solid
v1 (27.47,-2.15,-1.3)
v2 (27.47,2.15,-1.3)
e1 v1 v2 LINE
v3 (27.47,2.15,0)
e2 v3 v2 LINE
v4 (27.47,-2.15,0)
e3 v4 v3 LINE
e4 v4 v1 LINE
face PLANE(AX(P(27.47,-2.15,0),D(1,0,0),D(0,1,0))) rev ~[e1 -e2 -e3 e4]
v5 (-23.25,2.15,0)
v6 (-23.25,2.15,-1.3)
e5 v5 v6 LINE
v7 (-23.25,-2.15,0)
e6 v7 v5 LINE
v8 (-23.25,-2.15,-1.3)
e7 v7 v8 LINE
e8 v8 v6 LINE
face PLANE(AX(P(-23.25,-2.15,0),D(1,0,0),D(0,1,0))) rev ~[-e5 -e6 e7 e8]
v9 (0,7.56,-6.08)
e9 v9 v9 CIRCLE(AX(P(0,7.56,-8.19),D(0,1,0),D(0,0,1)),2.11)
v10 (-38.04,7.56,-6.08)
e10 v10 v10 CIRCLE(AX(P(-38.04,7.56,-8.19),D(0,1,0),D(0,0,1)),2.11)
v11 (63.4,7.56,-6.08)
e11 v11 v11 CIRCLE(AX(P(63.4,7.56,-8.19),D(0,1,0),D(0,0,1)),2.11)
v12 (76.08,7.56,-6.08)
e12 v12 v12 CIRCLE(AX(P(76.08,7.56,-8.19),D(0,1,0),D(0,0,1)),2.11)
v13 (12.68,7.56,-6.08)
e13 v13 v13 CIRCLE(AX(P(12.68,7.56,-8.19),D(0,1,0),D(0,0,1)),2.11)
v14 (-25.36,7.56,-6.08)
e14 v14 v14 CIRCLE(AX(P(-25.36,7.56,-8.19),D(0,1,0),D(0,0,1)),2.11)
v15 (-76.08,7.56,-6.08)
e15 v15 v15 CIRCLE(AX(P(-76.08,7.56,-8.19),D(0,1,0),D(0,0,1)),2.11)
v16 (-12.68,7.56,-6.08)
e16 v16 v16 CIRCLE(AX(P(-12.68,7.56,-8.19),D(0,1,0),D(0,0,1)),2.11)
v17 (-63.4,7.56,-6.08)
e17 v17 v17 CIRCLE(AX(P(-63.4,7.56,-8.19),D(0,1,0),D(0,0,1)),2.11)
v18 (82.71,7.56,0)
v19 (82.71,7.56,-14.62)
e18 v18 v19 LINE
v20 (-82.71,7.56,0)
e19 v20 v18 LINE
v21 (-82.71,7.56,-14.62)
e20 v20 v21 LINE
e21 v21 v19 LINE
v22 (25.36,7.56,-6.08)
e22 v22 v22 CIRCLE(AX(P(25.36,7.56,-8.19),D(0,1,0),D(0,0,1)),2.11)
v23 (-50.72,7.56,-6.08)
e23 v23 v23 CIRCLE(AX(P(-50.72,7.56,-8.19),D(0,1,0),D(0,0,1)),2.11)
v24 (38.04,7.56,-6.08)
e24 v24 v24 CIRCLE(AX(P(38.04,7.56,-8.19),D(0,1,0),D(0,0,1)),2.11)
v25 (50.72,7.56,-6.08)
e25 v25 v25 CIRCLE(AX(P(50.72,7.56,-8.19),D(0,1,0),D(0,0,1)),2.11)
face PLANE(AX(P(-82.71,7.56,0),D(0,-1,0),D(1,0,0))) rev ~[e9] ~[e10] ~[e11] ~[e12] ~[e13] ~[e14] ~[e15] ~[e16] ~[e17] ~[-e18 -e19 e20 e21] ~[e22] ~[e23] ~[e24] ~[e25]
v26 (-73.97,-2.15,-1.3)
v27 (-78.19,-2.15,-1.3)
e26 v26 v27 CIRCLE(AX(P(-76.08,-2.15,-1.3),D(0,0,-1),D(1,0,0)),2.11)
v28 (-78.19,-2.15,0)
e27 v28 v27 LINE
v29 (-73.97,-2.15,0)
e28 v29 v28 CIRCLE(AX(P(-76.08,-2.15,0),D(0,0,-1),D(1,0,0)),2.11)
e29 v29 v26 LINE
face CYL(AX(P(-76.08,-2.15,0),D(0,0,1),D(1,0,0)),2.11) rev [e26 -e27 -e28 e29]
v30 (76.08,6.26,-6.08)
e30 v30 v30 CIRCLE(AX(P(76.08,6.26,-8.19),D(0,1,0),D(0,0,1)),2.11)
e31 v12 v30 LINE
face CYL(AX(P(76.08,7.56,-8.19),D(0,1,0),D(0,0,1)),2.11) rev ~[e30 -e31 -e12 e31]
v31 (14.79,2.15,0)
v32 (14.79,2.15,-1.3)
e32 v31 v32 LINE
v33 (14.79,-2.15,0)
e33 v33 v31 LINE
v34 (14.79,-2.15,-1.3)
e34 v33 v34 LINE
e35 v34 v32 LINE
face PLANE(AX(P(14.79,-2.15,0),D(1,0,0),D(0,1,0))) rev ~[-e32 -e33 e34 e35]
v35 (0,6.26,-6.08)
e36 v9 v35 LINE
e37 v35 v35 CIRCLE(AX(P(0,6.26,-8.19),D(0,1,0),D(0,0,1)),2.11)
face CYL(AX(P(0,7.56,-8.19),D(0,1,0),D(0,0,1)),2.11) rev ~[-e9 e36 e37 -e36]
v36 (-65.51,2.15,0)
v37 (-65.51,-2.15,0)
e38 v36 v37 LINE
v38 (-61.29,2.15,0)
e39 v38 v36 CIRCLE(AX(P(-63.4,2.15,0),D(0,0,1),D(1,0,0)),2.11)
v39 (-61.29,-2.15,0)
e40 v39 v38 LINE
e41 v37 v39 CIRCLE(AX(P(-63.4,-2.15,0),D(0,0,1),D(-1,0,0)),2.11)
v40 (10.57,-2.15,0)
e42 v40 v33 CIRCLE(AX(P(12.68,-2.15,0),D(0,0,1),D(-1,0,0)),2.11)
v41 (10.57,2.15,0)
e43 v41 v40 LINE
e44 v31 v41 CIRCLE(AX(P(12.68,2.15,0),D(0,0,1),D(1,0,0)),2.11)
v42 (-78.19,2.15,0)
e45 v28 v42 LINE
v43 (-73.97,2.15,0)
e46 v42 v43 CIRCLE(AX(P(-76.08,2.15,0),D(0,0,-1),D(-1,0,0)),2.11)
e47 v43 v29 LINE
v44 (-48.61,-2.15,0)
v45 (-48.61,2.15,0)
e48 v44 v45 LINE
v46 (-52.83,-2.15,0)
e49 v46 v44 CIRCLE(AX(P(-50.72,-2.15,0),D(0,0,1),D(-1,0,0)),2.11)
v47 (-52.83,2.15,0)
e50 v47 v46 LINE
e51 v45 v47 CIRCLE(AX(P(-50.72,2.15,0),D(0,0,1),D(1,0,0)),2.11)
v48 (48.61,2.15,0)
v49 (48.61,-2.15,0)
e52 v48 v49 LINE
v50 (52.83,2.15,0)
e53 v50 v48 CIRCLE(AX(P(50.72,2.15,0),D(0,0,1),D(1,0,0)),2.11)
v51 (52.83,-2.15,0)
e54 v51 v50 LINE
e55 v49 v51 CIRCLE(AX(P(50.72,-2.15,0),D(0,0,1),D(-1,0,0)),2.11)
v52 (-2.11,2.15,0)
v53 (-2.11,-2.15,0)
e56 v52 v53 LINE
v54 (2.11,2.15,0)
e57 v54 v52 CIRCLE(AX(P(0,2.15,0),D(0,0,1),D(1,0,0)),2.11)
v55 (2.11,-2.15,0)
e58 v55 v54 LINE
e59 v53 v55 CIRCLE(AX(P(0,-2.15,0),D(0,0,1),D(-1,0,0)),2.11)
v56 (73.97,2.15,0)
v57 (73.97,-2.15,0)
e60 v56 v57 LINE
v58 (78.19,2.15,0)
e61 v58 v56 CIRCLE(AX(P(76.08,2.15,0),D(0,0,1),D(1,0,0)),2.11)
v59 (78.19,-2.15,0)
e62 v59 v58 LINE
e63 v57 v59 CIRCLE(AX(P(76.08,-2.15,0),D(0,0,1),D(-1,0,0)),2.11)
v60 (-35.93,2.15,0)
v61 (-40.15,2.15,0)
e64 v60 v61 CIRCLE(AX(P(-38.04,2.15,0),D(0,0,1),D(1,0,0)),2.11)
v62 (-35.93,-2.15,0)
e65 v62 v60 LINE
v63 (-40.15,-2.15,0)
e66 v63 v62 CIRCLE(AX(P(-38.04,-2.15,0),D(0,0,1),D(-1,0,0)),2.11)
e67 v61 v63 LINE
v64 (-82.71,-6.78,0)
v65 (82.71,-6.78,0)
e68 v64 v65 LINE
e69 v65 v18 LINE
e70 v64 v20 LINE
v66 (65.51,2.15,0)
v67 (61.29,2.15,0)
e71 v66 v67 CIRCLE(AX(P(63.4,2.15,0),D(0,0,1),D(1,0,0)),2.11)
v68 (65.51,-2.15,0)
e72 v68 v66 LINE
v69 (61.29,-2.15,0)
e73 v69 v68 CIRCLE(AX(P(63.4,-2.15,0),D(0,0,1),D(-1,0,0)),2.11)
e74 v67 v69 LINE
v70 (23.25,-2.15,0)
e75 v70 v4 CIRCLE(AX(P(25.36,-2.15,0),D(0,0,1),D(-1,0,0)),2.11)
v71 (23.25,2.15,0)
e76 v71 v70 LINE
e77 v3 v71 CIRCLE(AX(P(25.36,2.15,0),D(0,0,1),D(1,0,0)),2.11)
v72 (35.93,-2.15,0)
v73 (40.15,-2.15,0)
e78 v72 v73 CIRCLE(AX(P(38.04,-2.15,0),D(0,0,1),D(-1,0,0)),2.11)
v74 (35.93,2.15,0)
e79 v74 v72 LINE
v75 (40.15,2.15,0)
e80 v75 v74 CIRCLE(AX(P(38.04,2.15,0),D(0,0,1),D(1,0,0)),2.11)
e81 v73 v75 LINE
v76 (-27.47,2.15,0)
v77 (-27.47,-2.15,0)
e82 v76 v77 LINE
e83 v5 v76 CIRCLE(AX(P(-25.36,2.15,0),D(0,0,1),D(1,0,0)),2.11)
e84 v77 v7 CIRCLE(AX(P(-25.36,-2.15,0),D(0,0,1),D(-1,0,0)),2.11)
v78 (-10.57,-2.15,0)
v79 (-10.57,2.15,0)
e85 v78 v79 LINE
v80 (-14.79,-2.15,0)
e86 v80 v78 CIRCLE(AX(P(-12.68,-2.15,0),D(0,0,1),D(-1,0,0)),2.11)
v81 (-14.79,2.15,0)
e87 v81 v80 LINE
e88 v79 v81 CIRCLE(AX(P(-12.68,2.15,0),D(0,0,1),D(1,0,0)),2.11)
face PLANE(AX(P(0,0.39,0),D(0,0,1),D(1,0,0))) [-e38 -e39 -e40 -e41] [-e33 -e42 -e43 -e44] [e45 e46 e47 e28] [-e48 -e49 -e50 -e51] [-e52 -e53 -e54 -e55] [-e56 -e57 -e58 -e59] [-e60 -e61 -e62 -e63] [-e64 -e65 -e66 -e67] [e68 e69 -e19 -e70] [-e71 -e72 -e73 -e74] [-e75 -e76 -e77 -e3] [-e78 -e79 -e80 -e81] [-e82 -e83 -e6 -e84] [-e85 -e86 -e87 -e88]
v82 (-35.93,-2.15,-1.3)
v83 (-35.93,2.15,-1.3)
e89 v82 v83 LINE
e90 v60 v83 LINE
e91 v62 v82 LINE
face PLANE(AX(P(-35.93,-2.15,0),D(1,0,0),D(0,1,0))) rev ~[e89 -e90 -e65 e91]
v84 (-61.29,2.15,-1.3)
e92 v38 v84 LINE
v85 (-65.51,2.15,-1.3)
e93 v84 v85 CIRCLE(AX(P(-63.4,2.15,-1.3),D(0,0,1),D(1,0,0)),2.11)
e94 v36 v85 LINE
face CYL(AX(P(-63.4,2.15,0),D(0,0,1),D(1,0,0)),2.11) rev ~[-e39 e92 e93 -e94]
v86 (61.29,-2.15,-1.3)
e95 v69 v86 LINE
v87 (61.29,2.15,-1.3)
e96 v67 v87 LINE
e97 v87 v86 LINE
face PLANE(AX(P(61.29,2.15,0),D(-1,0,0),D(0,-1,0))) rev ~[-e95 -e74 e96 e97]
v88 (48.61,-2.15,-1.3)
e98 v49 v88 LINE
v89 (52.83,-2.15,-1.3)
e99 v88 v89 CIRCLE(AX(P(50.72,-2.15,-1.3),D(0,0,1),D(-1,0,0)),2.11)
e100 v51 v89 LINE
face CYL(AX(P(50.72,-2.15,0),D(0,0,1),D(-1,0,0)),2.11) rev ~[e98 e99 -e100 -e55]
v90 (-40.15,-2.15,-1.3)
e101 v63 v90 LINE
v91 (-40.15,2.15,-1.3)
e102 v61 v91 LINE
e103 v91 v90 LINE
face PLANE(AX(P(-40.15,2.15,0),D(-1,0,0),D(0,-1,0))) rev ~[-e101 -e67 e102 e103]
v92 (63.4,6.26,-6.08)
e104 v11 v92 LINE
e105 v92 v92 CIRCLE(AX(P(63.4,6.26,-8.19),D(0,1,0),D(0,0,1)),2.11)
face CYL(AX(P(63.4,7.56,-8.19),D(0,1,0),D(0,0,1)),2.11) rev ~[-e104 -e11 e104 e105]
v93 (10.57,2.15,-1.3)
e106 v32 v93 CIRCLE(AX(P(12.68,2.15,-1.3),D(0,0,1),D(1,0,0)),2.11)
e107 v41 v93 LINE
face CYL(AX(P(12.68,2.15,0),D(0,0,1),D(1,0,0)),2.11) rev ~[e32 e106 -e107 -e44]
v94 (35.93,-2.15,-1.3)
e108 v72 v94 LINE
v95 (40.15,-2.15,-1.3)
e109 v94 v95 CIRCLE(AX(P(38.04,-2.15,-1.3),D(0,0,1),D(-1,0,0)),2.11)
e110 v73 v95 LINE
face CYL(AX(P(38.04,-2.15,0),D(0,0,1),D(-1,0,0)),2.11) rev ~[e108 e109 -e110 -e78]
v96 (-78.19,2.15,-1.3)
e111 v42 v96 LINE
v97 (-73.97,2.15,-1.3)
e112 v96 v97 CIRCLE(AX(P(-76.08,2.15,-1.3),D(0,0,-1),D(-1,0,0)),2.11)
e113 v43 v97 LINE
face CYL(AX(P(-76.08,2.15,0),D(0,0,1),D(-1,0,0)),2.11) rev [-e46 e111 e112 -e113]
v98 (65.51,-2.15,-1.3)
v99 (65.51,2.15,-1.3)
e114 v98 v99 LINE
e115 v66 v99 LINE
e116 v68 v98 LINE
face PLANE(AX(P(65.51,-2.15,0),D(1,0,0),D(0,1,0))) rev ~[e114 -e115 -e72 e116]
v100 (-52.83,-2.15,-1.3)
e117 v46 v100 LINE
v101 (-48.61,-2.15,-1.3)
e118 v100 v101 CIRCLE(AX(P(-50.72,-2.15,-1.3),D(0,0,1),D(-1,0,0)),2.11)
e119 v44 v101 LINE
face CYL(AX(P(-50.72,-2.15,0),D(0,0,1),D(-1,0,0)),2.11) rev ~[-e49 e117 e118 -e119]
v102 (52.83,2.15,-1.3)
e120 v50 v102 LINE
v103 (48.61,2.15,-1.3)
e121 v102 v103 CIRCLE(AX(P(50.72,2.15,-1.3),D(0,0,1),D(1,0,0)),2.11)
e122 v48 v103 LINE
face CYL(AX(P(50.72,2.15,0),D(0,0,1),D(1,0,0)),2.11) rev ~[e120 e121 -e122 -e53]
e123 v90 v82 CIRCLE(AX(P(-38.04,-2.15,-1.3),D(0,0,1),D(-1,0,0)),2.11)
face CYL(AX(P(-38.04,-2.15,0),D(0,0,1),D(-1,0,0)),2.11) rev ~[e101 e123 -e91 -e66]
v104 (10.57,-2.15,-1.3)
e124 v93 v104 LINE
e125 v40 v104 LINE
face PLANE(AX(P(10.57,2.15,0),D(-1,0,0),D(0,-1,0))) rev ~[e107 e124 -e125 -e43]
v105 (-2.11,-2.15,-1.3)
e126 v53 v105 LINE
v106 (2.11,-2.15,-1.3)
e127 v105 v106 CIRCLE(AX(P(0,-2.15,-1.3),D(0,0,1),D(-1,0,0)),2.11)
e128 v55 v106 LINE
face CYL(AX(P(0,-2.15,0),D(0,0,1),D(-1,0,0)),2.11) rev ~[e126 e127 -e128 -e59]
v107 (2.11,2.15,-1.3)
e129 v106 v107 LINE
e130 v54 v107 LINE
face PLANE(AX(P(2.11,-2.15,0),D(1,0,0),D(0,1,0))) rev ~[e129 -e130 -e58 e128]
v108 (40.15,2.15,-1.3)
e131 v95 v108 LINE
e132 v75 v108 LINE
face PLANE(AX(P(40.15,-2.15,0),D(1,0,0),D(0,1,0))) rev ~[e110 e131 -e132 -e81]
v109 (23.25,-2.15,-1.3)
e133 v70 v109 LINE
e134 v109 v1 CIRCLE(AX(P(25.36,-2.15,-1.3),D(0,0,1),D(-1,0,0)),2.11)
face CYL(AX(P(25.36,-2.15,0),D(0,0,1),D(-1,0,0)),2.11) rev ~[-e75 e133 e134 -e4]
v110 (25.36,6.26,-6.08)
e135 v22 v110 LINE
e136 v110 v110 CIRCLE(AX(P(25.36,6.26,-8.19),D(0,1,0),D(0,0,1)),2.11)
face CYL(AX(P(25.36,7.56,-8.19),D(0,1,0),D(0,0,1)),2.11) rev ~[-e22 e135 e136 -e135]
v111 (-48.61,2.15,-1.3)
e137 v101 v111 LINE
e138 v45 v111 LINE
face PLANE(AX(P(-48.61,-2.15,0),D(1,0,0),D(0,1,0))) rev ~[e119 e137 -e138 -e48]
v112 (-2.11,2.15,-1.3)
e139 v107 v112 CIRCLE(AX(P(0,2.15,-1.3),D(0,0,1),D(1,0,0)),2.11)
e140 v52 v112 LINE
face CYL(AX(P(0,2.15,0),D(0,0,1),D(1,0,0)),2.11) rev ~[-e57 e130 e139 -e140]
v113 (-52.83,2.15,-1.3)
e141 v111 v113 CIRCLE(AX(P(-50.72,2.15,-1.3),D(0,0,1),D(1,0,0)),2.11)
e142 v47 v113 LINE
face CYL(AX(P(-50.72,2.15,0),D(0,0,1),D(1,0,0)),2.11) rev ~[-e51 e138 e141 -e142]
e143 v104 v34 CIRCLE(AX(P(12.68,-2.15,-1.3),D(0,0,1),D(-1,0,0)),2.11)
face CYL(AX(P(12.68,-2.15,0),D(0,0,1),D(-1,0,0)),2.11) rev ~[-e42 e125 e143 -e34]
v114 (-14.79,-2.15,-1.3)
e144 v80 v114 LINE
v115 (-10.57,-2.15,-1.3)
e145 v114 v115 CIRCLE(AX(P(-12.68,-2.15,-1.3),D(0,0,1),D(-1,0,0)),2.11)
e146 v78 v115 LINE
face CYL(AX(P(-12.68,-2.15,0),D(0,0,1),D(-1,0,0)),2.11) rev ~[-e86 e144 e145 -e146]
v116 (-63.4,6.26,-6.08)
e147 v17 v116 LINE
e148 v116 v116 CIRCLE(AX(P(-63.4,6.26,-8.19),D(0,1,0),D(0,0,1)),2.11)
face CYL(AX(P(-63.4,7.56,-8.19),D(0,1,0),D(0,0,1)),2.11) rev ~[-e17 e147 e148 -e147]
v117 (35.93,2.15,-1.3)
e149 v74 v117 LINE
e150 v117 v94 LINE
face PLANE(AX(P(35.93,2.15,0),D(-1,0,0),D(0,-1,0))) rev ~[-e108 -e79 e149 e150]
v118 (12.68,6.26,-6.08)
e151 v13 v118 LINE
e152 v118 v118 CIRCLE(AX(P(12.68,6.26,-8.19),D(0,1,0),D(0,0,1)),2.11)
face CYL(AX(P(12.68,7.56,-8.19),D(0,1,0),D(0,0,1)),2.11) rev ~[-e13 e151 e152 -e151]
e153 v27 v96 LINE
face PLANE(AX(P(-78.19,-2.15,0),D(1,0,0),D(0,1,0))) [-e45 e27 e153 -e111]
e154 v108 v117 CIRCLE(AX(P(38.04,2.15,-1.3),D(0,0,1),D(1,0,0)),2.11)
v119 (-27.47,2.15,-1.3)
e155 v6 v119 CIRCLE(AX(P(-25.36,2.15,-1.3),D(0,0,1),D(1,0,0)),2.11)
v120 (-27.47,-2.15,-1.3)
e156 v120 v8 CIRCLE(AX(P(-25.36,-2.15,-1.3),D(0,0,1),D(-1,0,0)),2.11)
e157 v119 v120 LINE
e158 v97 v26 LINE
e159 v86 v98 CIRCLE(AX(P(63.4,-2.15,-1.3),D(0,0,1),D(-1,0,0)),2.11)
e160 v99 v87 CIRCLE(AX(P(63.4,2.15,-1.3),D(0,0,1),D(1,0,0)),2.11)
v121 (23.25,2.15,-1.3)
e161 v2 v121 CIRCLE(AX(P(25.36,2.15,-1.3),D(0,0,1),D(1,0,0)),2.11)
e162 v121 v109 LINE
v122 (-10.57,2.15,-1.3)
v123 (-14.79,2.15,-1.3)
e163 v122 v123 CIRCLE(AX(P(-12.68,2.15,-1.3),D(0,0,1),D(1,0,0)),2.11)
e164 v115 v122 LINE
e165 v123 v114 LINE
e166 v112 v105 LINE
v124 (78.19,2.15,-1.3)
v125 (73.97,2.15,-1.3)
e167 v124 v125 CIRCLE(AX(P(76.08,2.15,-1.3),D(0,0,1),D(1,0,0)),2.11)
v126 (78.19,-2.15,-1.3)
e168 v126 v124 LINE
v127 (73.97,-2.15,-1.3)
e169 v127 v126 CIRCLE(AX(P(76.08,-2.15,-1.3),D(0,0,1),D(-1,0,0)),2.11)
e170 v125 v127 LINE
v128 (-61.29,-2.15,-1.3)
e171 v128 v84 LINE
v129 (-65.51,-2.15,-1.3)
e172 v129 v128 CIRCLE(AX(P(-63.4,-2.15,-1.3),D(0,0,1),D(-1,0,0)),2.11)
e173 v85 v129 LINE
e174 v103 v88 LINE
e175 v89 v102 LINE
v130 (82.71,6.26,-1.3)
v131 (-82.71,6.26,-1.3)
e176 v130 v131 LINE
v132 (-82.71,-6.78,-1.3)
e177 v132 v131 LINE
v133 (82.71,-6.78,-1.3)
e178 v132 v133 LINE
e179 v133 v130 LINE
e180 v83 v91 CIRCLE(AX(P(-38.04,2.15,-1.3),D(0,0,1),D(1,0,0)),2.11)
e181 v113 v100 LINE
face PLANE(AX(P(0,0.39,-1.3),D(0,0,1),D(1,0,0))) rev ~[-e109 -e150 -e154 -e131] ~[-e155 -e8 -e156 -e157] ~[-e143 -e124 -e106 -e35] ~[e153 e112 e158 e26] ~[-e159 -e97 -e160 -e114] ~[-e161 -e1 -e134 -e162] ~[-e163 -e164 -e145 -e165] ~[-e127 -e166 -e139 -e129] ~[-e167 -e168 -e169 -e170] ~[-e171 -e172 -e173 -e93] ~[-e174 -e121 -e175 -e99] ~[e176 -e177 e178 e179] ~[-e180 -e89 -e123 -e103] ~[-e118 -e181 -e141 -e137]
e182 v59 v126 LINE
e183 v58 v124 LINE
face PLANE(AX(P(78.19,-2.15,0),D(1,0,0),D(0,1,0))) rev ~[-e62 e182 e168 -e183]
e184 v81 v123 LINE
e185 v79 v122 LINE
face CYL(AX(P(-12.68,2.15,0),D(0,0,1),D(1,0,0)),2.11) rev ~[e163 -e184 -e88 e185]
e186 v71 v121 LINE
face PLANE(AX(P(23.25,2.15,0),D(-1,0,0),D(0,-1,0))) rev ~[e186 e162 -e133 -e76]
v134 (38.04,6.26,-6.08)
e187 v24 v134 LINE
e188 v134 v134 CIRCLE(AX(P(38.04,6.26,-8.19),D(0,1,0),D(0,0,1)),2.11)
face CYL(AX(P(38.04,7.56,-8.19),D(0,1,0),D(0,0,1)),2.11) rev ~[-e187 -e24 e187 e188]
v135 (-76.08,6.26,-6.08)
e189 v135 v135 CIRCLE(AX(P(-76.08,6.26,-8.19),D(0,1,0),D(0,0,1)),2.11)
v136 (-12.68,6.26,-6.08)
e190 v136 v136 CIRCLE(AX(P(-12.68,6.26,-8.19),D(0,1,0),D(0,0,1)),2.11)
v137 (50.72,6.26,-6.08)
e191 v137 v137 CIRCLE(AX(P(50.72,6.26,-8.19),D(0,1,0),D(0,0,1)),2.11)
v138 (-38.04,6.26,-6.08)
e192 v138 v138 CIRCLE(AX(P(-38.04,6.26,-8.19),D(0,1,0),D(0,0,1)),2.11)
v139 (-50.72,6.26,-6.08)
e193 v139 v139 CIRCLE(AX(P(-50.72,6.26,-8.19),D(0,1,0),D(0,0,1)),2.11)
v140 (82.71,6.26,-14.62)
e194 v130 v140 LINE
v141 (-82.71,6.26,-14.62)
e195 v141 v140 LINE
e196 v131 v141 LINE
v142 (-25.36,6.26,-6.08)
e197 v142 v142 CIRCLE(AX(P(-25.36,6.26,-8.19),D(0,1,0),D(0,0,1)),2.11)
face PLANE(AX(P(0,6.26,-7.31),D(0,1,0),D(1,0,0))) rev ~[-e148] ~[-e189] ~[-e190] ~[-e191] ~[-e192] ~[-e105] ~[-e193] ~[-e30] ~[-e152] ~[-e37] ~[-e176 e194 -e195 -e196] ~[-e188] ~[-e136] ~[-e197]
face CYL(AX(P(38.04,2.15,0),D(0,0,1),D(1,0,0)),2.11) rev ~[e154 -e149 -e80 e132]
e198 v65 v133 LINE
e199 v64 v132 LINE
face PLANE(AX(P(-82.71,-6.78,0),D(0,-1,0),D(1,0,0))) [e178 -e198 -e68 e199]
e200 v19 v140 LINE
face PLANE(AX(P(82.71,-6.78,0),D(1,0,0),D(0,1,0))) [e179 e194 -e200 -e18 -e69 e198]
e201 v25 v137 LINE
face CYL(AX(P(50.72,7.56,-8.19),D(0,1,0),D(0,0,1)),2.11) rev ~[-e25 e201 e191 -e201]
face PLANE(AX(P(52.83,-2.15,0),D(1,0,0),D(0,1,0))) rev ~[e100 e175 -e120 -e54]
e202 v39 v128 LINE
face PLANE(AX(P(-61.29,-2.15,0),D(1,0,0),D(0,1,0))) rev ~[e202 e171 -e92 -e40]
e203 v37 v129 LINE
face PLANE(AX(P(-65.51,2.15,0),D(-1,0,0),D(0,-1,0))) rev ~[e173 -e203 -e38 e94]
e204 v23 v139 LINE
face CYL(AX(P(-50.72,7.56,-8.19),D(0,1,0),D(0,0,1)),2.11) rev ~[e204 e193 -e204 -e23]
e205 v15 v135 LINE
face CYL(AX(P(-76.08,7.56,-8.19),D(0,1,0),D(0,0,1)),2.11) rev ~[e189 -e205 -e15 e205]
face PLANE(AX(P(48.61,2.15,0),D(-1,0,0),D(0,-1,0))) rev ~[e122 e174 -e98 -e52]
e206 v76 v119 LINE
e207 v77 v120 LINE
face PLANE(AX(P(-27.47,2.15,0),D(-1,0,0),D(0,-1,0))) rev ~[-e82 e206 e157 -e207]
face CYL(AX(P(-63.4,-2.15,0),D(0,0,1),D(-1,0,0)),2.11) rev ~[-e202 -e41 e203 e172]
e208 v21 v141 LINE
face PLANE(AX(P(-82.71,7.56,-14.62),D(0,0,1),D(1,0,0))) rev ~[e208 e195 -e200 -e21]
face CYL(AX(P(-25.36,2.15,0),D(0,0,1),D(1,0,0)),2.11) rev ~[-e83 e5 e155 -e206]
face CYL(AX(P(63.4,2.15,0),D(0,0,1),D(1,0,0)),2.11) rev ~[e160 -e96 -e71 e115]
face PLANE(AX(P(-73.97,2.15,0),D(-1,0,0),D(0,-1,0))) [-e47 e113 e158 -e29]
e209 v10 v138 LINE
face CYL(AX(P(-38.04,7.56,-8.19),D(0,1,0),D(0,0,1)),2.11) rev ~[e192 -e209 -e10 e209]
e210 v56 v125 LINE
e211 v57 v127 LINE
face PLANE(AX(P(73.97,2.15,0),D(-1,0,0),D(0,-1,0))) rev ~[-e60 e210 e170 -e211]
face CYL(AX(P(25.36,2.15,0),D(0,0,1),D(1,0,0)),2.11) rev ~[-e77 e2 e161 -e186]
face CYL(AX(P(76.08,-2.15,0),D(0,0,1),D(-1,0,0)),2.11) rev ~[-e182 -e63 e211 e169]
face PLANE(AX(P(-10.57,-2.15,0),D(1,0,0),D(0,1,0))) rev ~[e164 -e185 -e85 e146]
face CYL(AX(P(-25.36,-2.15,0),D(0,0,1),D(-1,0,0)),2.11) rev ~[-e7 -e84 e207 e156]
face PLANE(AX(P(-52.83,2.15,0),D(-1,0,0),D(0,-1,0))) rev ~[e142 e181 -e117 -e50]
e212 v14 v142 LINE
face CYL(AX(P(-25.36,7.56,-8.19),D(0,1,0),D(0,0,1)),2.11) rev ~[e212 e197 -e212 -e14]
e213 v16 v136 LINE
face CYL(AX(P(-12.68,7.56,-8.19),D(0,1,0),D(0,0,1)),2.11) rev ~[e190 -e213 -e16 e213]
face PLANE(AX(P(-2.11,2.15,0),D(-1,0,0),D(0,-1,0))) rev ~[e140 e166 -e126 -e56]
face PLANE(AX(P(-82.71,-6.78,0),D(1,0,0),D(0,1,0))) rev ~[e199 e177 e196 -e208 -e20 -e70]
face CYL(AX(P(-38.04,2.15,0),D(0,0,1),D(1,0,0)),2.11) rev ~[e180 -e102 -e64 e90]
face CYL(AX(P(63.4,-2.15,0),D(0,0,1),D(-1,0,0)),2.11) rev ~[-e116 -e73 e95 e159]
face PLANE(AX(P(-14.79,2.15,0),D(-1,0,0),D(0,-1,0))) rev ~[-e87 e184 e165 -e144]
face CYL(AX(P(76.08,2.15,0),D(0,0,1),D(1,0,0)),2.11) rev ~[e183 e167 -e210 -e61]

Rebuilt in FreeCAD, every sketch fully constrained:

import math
import FreeCAD as App
import Part
import Sketcher
from FreeCAD import Vector


def add_polygon(sketch, points):
    """Adds a closed chain of lines whose ends are joined by coincident constraints."""
    first, n = sketch.GeometryCount, len(points)
    for a, b in zip(points, points[1:] + points[:1]):
        sketch.addGeometry(Part.LineSegment(App.Vector(*a, 0), App.Vector(*b, 0)), False)
    for i in range(n):
        sketch.addConstraint(Sketcher.Constraint("Coincident", first + i, 2, first + (i + 1) % n, 1))

doc = App.newDocument("Part")
body = doc.addObject("PartDesign::Body", "Body")

# Sketch on XY plane
sketch1 = body.newObject("Sketcher::SketchObject", "Sketch")
sketch1.AttachmentSupport = (doc.getObject("XY_Plane"), [""])
sketch1.MapMode = "FlatFace"
add_polygon(sketch1, [(-82.7, 7.6), (-82.7, -6.8), (82.7, -6.8), (82.7, 7.6)])  # lines 0-3
sketch1.addGeometry(Part.LineSegment(Vector(-65.5, -2.1, 0), Vector(-65.5, 2.1, 0)), False)  # 4
sketch1.addGeometry(Part.ArcOfCircle(Part.Circle(Vector(-63.4, 2.1, 0), Vector(0, 0, 1), 2.1), math.radians(0), math.radians(180)), False)  # 5
sketch1.addGeometry(Part.LineSegment(Vector(-61.3, 2.1, 0), Vector(-61.3, -2.1, 0)), False)  # 6
sketch1.addGeometry(Part.ArcOfCircle(Part.Circle(Vector(-63.4, -2.1, 0), Vector(0, 0, 1), 2.1), math.radians(180), math.radians(360)), False)  # 7
sketch1.addGeometry(Part.ArcOfCircle(Part.Circle(Vector(-76.1, 2.1, 0), Vector(0, 0, 1), 2.1), math.radians(0), math.radians(180)), False)  # 8
sketch1.addGeometry(Part.LineSegment(Vector(-74, 2.1, 0), Vector(-74, -2.1, 0)), False)  # 9
sketch1.addGeometry(Part.ArcOfCircle(Part.Circle(Vector(-76.1, -2.1, 0), Vector(0, 0, 1), 2.1), math.radians(180), math.radians(360)), False)  # 10
sketch1.addGeometry(Part.LineSegment(Vector(-78.2, -2.1, 0), Vector(-78.2, 2.1, 0)), False)  # 11
sketch1.addGeometry(Part.LineSegment(Vector(-52.8, -2.1, 0), Vector(-52.8, 2.1, 0)), False)  # 12
sketch1.addGeometry(Part.ArcOfCircle(Part.Circle(Vector(-50.7, 2.1, 0), Vector(0, 0, 1), 2.1), math.radians(0), math.radians(180)), False)  # 13
sketch1.addGeometry(Part.LineSegment(Vector(-48.6, 2.1, 0), Vector(-48.6, -2.1, 0)), False)  # 14
sketch1.addGeometry(Part.ArcOfCircle(Part.Circle(Vector(-50.7, -2.1, 0), Vector(0, 0, 1), 2.1), math.radians(180), math.radians(360)), False)  # 15
sketch1.addGeometry(Part.LineSegment(Vector(-40.1, -2.1, 0), Vector(-40.1, 2.1, 0)), False)  # 16
sketch1.addGeometry(Part.ArcOfCircle(Part.Circle(Vector(-38, 2.1, 0), Vector(0, 0, 1), 2.1), math.radians(0), math.radians(180)), False)  # 17
sketch1.addGeometry(Part.LineSegment(Vector(-35.9, 2.1, 0), Vector(-35.9, -2.1, 0)), False)  # 18
sketch1.addGeometry(Part.ArcOfCircle(Part.Circle(Vector(-38, -2.1, 0), Vector(0, 0, 1), 2.1), math.radians(180), math.radians(360)), False)  # 19
sketch1.addGeometry(Part.LineSegment(Vector(-27.5, -2.1, 0), Vector(-27.5, 2.1, 0)), False)  # 20
sketch1.addGeometry(Part.ArcOfCircle(Part.Circle(Vector(-25.4, 2.1, 0), Vector(0, 0, 1), 2.1), math.radians(0), math.radians(180)), False)  # 21
sketch1.addGeometry(Part.LineSegment(Vector(-23.2, 2.1, 0), Vector(-23.2, -2.1, 0)), False)  # 22
sketch1.addGeometry(Part.ArcOfCircle(Part.Circle(Vector(-25.4, -2.1, 0), Vector(0, 0, 1), 2.1), math.radians(180), math.radians(360)), False)  # 23
sketch1.addGeometry(Part.LineSegment(Vector(-14.8, -2.1, 0), Vector(-14.8, 2.1, 0)), False)  # 24
sketch1.addGeometry(Part.ArcOfCircle(Part.Circle(Vector(-12.7, 2.1, 0), Vector(0, 0, 1), 2.1), math.radians(0), math.radians(180)), False)  # 25
sketch1.addGeometry(Part.LineSegment(Vector(-10.6, 2.1, 0), Vector(-10.6, -2.1, 0)), False)  # 26
sketch1.addGeometry(Part.ArcOfCircle(Part.Circle(Vector(-12.7, -2.1, 0), Vector(0, 0, 1), 2.1), math.radians(180), math.radians(360)), False)  # 27
sketch1.addGeometry(Part.LineSegment(Vector(-2.1, -2.1, 0), Vector(-2.1, 2.1, 0)), False)  # 28
sketch1.addGeometry(Part.ArcOfCircle(Part.Circle(Vector(0, 2.1, 0), Vector(0, 0, 1), 2.1), math.radians(0), math.radians(180)), False)  # 29
sketch1.addGeometry(Part.LineSegment(Vector(2.1, 2.1, 0), Vector(2.1, -2.1, 0)), False)  # 30
sketch1.addGeometry(Part.ArcOfCircle(Part.Circle(Vector(0, -2.1, 0), Vector(0, 0, 1), 2.1), math.radians(180), math.radians(360)), False)  # 31
sketch1.addGeometry(Part.LineSegment(Vector(10.6, -2.1, 0), Vector(10.6, 2.1, 0)), False)  # 32
sketch1.addGeometry(Part.ArcOfCircle(Part.Circle(Vector(12.7, 2.1, 0), Vector(0, 0, 1), 2.1), math.radians(0), math.radians(180)), False)  # 33
sketch1.addGeometry(Part.LineSegment(Vector(14.8, 2.1, 0), Vector(14.8, -2.1, 0)), False)  # 34
sketch1.addGeometry(Part.ArcOfCircle(Part.Circle(Vector(12.7, -2.1, 0), Vector(0, 0, 1), 2.1), math.radians(180), math.radians(360)), False)  # 35
sketch1.addGeometry(Part.LineSegment(Vector(23.2, -2.1, 0), Vector(23.2, 2.1, 0)), False)  # 36
sketch1.addGeometry(Part.ArcOfCircle(Part.Circle(Vector(25.4, 2.1, 0), Vector(0, 0, 1), 2.1), math.radians(0), math.radians(180)), False)  # 37
sketch1.addGeometry(Part.LineSegment(Vector(27.5, 2.1, 0), Vector(27.5, -2.1, 0)), False)  # 38
sketch1.addGeometry(Part.ArcOfCircle(Part.Circle(Vector(25.4, -2.1, 0), Vector(0, 0, 1), 2.1), math.radians(180), math.radians(360)), False)  # 39
sketch1.addGeometry(Part.LineSegment(Vector(35.9, -2.1, 0), Vector(35.9, 2.1, 0)), False)  # 40
sketch1.addGeometry(Part.ArcOfCircle(Part.Circle(Vector(38, 2.1, 0), Vector(0, 0, 1), 2.1), math.radians(0), math.radians(180)), False)  # 41
sketch1.addGeometry(Part.LineSegment(Vector(40.1, 2.1, 0), Vector(40.1, -2.1, 0)), False)  # 42
sketch1.addGeometry(Part.ArcOfCircle(Part.Circle(Vector(38, -2.1, 0), Vector(0, 0, 1), 2.1), math.radians(180), math.radians(360)), False)  # 43
sketch1.addGeometry(Part.LineSegment(Vector(48.6, -2.1, 0), Vector(48.6, 2.1, 0)), False)  # 44
sketch1.addGeometry(Part.ArcOfCircle(Part.Circle(Vector(50.7, 2.1, 0), Vector(0, 0, 1), 2.1), math.radians(0), math.radians(180)), False)  # 45
sketch1.addGeometry(Part.LineSegment(Vector(52.8, 2.1, 0), Vector(52.8, -2.1, 0)), False)  # 46
sketch1.addGeometry(Part.ArcOfCircle(Part.Circle(Vector(50.7, -2.1, 0), Vector(0, 0, 1), 2.1), math.radians(180), math.radians(360)), False)  # 47
sketch1.addGeometry(Part.LineSegment(Vector(61.3, -2.1, 0), Vector(61.3, 2.1, 0)), False)  # 48
sketch1.addGeometry(Part.ArcOfCircle(Part.Circle(Vector(63.4, 2.1, 0), Vector(0, 0, 1), 2.1), math.radians(0), math.radians(180)), False)  # 49
sketch1.addGeometry(Part.LineSegment(Vector(65.5, 2.1, 0), Vector(65.5, -2.1, 0)), False)  # 50
sketch1.addGeometry(Part.ArcOfCircle(Part.Circle(Vector(63.4, -2.1, 0), Vector(0, 0, 1), 2.1), math.radians(180), math.radians(360)), False)  # 51
sketch1.addGeometry(Part.LineSegment(Vector(74, -2.1, 0), Vector(74, 2.1, 0)), False)  # 52
sketch1.addGeometry(Part.ArcOfCircle(Part.Circle(Vector(76.1, 2.1, 0), Vector(0, 0, 1), 2.1), math.radians(0), math.radians(180)), False)  # 53
sketch1.addGeometry(Part.LineSegment(Vector(78.2, 2.1, 0), Vector(78.2, -2.1, 0)), False)  # 54
sketch1.addGeometry(Part.ArcOfCircle(Part.Circle(Vector(76.1, -2.1, 0), Vector(0, 0, 1), 2.1), math.radians(180), math.radians(360)), False)  # 55
sketch1.addConstraint(Sketcher.Constraint("Tangent", 4, 2, 5, 2))
sketch1.addConstraint(Sketcher.Constraint("Tangent", 5, 1, 6, 1))
sketch1.addConstraint(Sketcher.Constraint("Tangent", 6, 2, 7, 2))
sketch1.addConstraint(Sketcher.Constraint("Tangent", 7, 1, 4, 1))
sketch1.addConstraint(Sketcher.Constraint("Tangent", 8, 1, 9, 1))
sketch1.addConstraint(Sketcher.Constraint("Tangent", 9, 2, 10, 2))
sketch1.addConstraint(Sketcher.Constraint("Tangent", 10, 1, 11, 1))
sketch1.addConstraint(Sketcher.Constraint("Tangent", 11, 2, 8, 2))
sketch1.addConstraint(Sketcher.Constraint("Tangent", 12, 2, 13, 2))
sketch1.addConstraint(Sketcher.Constraint("Tangent", 13, 1, 14, 1))
sketch1.addConstraint(Sketcher.Constraint("Tangent", 14, 2, 15, 2))
sketch1.addConstraint(Sketcher.Constraint("Tangent", 15, 1, 12, 1))
sketch1.addConstraint(Sketcher.Constraint("Tangent", 16, 2, 17, 2))
sketch1.addConstraint(Sketcher.Constraint("Tangent", 17, 1, 18, 1))
sketch1.addConstraint(Sketcher.Constraint("Tangent", 18, 2, 19, 2))
sketch1.addConstraint(Sketcher.Constraint("Tangent", 19, 1, 16, 1))
sketch1.addConstraint(Sketcher.Constraint("Tangent", 20, 2, 21, 2))
sketch1.addConstraint(Sketcher.Constraint("Tangent", 21, 1, 22, 1))
sketch1.addConstraint(Sketcher.Constraint("Tangent", 22, 2, 23, 2))
sketch1.addConstraint(Sketcher.Constraint("Tangent", 23, 1, 20, 1))
sketch1.addConstraint(Sketcher.Constraint("Tangent", 24, 2, 25, 2))
sketch1.addConstraint(Sketcher.Constraint("Tangent", 25, 1, 26, 1))
sketch1.addConstraint(Sketcher.Constraint("Tangent", 26, 2, 27, 2))
sketch1.addConstraint(Sketcher.Constraint("Tangent", 27, 1, 24, 1))
sketch1.addConstraint(Sketcher.Constraint("Tangent", 28, 2, 29, 2))
sketch1.addConstraint(Sketcher.Constraint("Tangent", 29, 1, 30, 1))
sketch1.addConstraint(Sketcher.Constraint("Tangent", 30, 2, 31, 2))
sketch1.addConstraint(Sketcher.Constraint("Tangent", 31, 1, 28, 1))
sketch1.addConstraint(Sketcher.Constraint("Tangent", 32, 2, 33, 2))
sketch1.addConstraint(Sketcher.Constraint("Tangent", 33, 1, 34, 1))
sketch1.addConstraint(Sketcher.Constraint("Tangent", 34, 2, 35, 2))
sketch1.addConstraint(Sketcher.Constraint("Tangent", 35, 1, 32, 1))
sketch1.addConstraint(Sketcher.Constraint("Tangent", 36, 2, 37, 2))
sketch1.addConstraint(Sketcher.Constraint("Tangent", 37, 1, 38, 1))
sketch1.addConstraint(Sketcher.Constraint("Tangent", 38, 2, 39, 2))
sketch1.addConstraint(Sketcher.Constraint("Tangent", 39, 1, 36, 1))
sketch1.addConstraint(Sketcher.Constraint("Tangent", 40, 2, 41, 2))
sketch1.addConstraint(Sketcher.Constraint("Tangent", 41, 1, 42, 1))
sketch1.addConstraint(Sketcher.Constraint("Tangent", 42, 2, 43, 2))
sketch1.addConstraint(Sketcher.Constraint("Tangent", 43, 1, 40, 1))
sketch1.addConstraint(Sketcher.Constraint("Tangent", 44, 2, 45, 2))
sketch1.addConstraint(Sketcher.Constraint("Tangent", 45, 1, 46, 1))
sketch1.addConstraint(Sketcher.Constraint("Tangent", 46, 2, 47, 2))
sketch1.addConstraint(Sketcher.Constraint("Tangent", 47, 1, 44, 1))
sketch1.addConstraint(Sketcher.Constraint("Tangent", 48, 2, 49, 2))
sketch1.addConstraint(Sketcher.Constraint("Tangent", 49, 1, 50, 1))
sketch1.addConstraint(Sketcher.Constraint("Tangent", 50, 2, 51, 2))
sketch1.addConstraint(Sketcher.Constraint("Tangent", 51, 1, 48, 1))
sketch1.addConstraint(Sketcher.Constraint("Tangent", 52, 2, 53, 2))
sketch1.addConstraint(Sketcher.Constraint("Tangent", 53, 1, 54, 1))
sketch1.addConstraint(Sketcher.Constraint("Tangent", 54, 2, 55, 2))
sketch1.addConstraint(Sketcher.Constraint("Tangent", 55, 1, 52, 1))
sketch1.addConstraint(Sketcher.Constraint("Vertical", 0))
sketch1.addConstraint(Sketcher.Constraint("Horizontal", 1))
sketch1.addConstraint(Sketcher.Constraint("Vertical", 2))
sketch1.addConstraint(Sketcher.Constraint("Horizontal", 3))
sketch1.addConstraint(Sketcher.Constraint("Vertical", 4))
sketch1.addConstraint(Sketcher.Constraint("Vertical", 6))
sketch1.addConstraint(Sketcher.Constraint("Vertical", 9))
sketch1.addConstraint(Sketcher.Constraint("Vertical", 11))
sketch1.addConstraint(Sketcher.Constraint("Vertical", 12))
sketch1.addConstraint(Sketcher.Constraint("Vertical", 14))
sketch1.addConstraint(Sketcher.Constraint("Vertical", 16))
sketch1.addConstraint(Sketcher.Constraint("Vertical", 18))
sketch1.addConstraint(Sketcher.Constraint("Vertical", 20))
sketch1.addConstraint(Sketcher.Constraint("Vertical", 22))
sketch1.addConstraint(Sketcher.Constraint("Vertical", 24))
sketch1.addConstraint(Sketcher.Constraint("Vertical", 26))
sketch1.addConstraint(Sketcher.Constraint("Vertical", 28))
sketch1.addConstraint(Sketcher.Constraint("Vertical", 30))
sketch1.addConstraint(Sketcher.Constraint("Vertical", 32))
sketch1.addConstraint(Sketcher.Constraint("Vertical", 34))
sketch1.addConstraint(Sketcher.Constraint("Vertical", 36))
sketch1.addConstraint(Sketcher.Constraint("Vertical", 38))
sketch1.addConstraint(Sketcher.Constraint("Vertical", 40))
sketch1.addConstraint(Sketcher.Constraint("Vertical", 42))
sketch1.addConstraint(Sketcher.Constraint("Vertical", 44))
sketch1.addConstraint(Sketcher.Constraint("Vertical", 46))
sketch1.addConstraint(Sketcher.Constraint("Vertical", 48))
sketch1.addConstraint(Sketcher.Constraint("Vertical", 50))
sketch1.addConstraint(Sketcher.Constraint("Vertical", 52))
sketch1.addConstraint(Sketcher.Constraint("Vertical", 54))
sketch1.addConstraint(Sketcher.Constraint("Equal", 7, 8))
sketch1.addConstraint(Sketcher.Constraint("Equal", 10, 13))
sketch1.addConstraint(Sketcher.Constraint("Equal", 15, 17))
sketch1.addConstraint(Sketcher.Constraint("Equal", 19, 21))
sketch1.addConstraint(Sketcher.Constraint("Equal", 23, 25))
sketch1.addConstraint(Sketcher.Constraint("Equal", 27, 29))
sketch1.addConstraint(Sketcher.Constraint("Equal", 31, 33))
sketch1.addConstraint(Sketcher.Constraint("Equal", 35, 37))
sketch1.addConstraint(Sketcher.Constraint("Equal", 39, 41))
sketch1.addConstraint(Sketcher.Constraint("Equal", 43, 45))
sketch1.addConstraint(Sketcher.Constraint("Equal", 47, 49))
sketch1.addConstraint(Sketcher.Constraint("Equal", 51, 53))
sketch1.addConstraint(Sketcher.Constraint("Symmetric", 29, 3, 31, 3, -1, 1))
sketch1.addConstraint(Sketcher.Constraint("Symmetric", 27, 3, 33, 3, -1, 1))
sketch1.addConstraint(Sketcher.Constraint("Symmetric", 23, 3, 37, 3, -1, 1))
sketch1.addConstraint(Sketcher.Constraint("Symmetric", 19, 3, 41, 3, -1, 1))
sketch1.addConstraint(Sketcher.Constraint("Symmetric", 15, 3, 45, 3, -1, 1))
sketch1.addConstraint(Sketcher.Constraint("Symmetric", 7, 3, 49, 3, -1, 1))
sketch1.addConstraint(Sketcher.Constraint("Symmetric", 10, 3, 53, 3, -1, 1))
sketch1.addConstraint(Sketcher.Constraint("Horizontal", 5, 3, 8, 3))
sketch1.addConstraint(Sketcher.Constraint("Horizontal", 7, 3, 10, 3))
sketch1.addConstraint(Sketcher.Constraint("Horizontal", 8, 3, 13, 3))
sketch1.addConstraint(Sketcher.Constraint("Horizontal", 10, 3, 15, 3))
sketch1.addConstraint(Sketcher.Constraint("Horizontal", 13, 3, 17, 3))
sketch1.addConstraint(Sketcher.Constraint("Horizontal", 15, 3, 19, 3))
sketch1.addConstraint(Sketcher.Constraint("Horizontal", 17, 3, 21, 3))
sketch1.addConstraint(Sketcher.Constraint("Horizontal", 19, 3, 23, 3))
sketch1.addConstraint(Sketcher.Constraint("Horizontal", 21, 3, 25, 3))
sketch1.addConstraint(Sketcher.Constraint("Horizontal", 23, 3, 27, 3))
sketch1.addConstraint(Sketcher.Constraint("Horizontal", 25, 3, 29, 3))
sketch1.addConstraint(Sketcher.Constraint("Horizontal", 27, 3, 31, 3))
sketch1.addConstraint(Sketcher.Constraint("Horizontal", 31, 3, 35, 3))
sketch1.addConstraint(Sketcher.Constraint("Horizontal", 35, 3, 39, 3))
sketch1.addConstraint(Sketcher.Constraint("Horizontal", 39, 3, 43, 3))
sketch1.addConstraint(Sketcher.Constraint("Horizontal", 43, 3, 47, 3))
sketch1.addConstraint(Sketcher.Constraint("Horizontal", 47, 3, 51, 3))
sketch1.addConstraint(Sketcher.Constraint("Horizontal", 51, 3, 55, 3))
sketch1.addConstraint(Sketcher.Constraint("Radius", 5, 2.11))
sketch1.addConstraint(Sketcher.Constraint("DistanceY", 4, 1, 4, 2, 4.3))
sketch1.addConstraint(Sketcher.Constraint("DistanceX", 1, 1, 1, 2, 165.42))
sketch1.addConstraint(Sketcher.Constraint("DistanceY", 0, 2, 0, 1, 14.34))
sketch1.addConstraint(Sketcher.Constraint("DistanceX", 5, 3, -1, 1, 63.4))
sketch1.addConstraint(Sketcher.Constraint("DistanceX", 8, 3, -1, 1, 76.08))
sketch1.addConstraint(Sketcher.Constraint("DistanceX", 13, 3, -1, 1, 50.72))
sketch1.addConstraint(Sketcher.Constraint("DistanceX", 17, 3, -1, 1, 38.04))
sketch1.addConstraint(Sketcher.Constraint("DistanceX", 21, 3, -1, 1, 25.36))
sketch1.addConstraint(Sketcher.Constraint("DistanceX", 25, 3, -1, 1, 12.68))
sketch1.addConstraint(Sketcher.Constraint("DistanceX", 0, 2, -1, 1, 82.71))
sketch1.addConstraint(Sketcher.Constraint("DistanceY", 0, 2, -1, 1, 6.78))
pad1 = body.newObject("PartDesign::Pad", "Pad")
pad1.Profile = sketch1
pad1.Length = 1.3
pad1.Reversed = True

# Sketch on XZ plane
sketch2 = body.newObject("Sketcher::SketchObject", "Sketch001")
sketch2.AttachmentSupport = (doc.getObject("XZ_Plane"), [""])
sketch2.MapMode = "FlatFace"
sketch2.AttachmentOffset = App.Placement(Vector(0, 0, -7.56), App.Rotation())
add_polygon(sketch2, [(-82.7, -14.6), (-82.7, 0), (82.7, 0), (82.7, -14.6)])  # lines 0-3
sketch2.addGeometry(Part.Circle(Vector(-76.1, -8.2, 0), Vector(0, 0, 1), 2.1), False)  # 4
sketch2.addGeometry(Part.Circle(Vector(-63.4, -8.2, 0), Vector(0, 0, 1), 2.1), False)  # 5
sketch2.addGeometry(Part.Circle(Vector(-50.7, -8.2, 0), Vector(0, 0, 1), 2.1), False)  # 6
sketch2.addGeometry(Part.Circle(Vector(-38, -8.2, 0), Vector(0, 0, 1), 2.1), False)  # 7
sketch2.addGeometry(Part.Circle(Vector(-25.4, -8.2, 0), Vector(0, 0, 1), 2.1), False)  # 8
sketch2.addGeometry(Part.Circle(Vector(-12.7, -8.2, 0), Vector(0, 0, 1), 2.1), False)  # 9
sketch2.addGeometry(Part.Circle(Vector(0, -8.2, 0), Vector(0, 0, 1), 2.1), False)  # 10
sketch2.addGeometry(Part.Circle(Vector(12.7, -8.2, 0), Vector(0, 0, 1), 2.1), False)  # 11
sketch2.addGeometry(Part.Circle(Vector(25.4, -8.2, 0), Vector(0, 0, 1), 2.1), False)  # 12
sketch2.addGeometry(Part.Circle(Vector(38, -8.2, 0), Vector(0, 0, 1), 2.1), False)  # 13
sketch2.addGeometry(Part.Circle(Vector(50.7, -8.2, 0), Vector(0, 0, 1), 2.1), False)  # 14
sketch2.addGeometry(Part.Circle(Vector(63.4, -8.2, 0), Vector(0, 0, 1), 2.1), False)  # 15
sketch2.addGeometry(Part.Circle(Vector(76.1, -8.2, 0), Vector(0, 0, 1), 2.1), False)  # 16
sketch2.addConstraint(Sketcher.Constraint("Vertical", 0))
sketch2.addConstraint(Sketcher.Constraint("Horizontal", 1))
sketch2.addConstraint(Sketcher.Constraint("Vertical", 2))
sketch2.addConstraint(Sketcher.Constraint("Horizontal", 3))
sketch2.addConstraint(Sketcher.Constraint("Equal", 4, 5))
sketch2.addConstraint(Sketcher.Constraint("Equal", 5, 6))
sketch2.addConstraint(Sketcher.Constraint("Equal", 6, 7))
sketch2.addConstraint(Sketcher.Constraint("Equal", 7, 8))
sketch2.addConstraint(Sketcher.Constraint("Equal", 8, 9))
sketch2.addConstraint(Sketcher.Constraint("Equal", 9, 10))
sketch2.addConstraint(Sketcher.Constraint("Equal", 10, 11))
sketch2.addConstraint(Sketcher.Constraint("Equal", 11, 12))
sketch2.addConstraint(Sketcher.Constraint("Equal", 12, 13))
sketch2.addConstraint(Sketcher.Constraint("Equal", 13, 14))
sketch2.addConstraint(Sketcher.Constraint("Equal", 14, 15))
sketch2.addConstraint(Sketcher.Constraint("Equal", 15, 16))
sketch2.addConstraint(Sketcher.Constraint("Symmetric", 0, 2, 1, 2, -1, 1))
sketch2.addConstraint(Sketcher.Constraint("Symmetric", 9, 3, 11, 3, -2))
sketch2.addConstraint(Sketcher.Constraint("Symmetric", 8, 3, 12, 3, -2))
sketch2.addConstraint(Sketcher.Constraint("Symmetric", 7, 3, 13, 3, -2))
sketch2.addConstraint(Sketcher.Constraint("Symmetric", 6, 3, 14, 3, -2))
sketch2.addConstraint(Sketcher.Constraint("Symmetric", 5, 3, 15, 3, -2))
sketch2.addConstraint(Sketcher.Constraint("Symmetric", 4, 3, 16, 3, -2))
sketch2.addConstraint(Sketcher.Constraint("PointOnObject", 10, 3, -2))
sketch2.addConstraint(Sketcher.Constraint("Horizontal", 4, 3, 5, 3))
sketch2.addConstraint(Sketcher.Constraint("Horizontal", 5, 3, 6, 3))
sketch2.addConstraint(Sketcher.Constraint("Horizontal", 6, 3, 7, 3))
sketch2.addConstraint(Sketcher.Constraint("Horizontal", 7, 3, 8, 3))
sketch2.addConstraint(Sketcher.Constraint("Horizontal", 8, 3, 9, 3))
sketch2.addConstraint(Sketcher.Constraint("Horizontal", 9, 3, 10, 3))
sketch2.addConstraint(Sketcher.Constraint("Diameter", 4, 4.22))
sketch2.addConstraint(Sketcher.Constraint("DistanceX", 1, 1, 1, 2, 165.42))
sketch2.addConstraint(Sketcher.Constraint("DistanceY", 0, 1, 0, 2, 14.62))
sketch2.addConstraint(Sketcher.Constraint("DistanceX", 5, 3, -1, 1, 63.4))
sketch2.addConstraint(Sketcher.Constraint("DistanceX", 4, 3, 9, 3, 63.4))
sketch2.addConstraint(Sketcher.Constraint("DistanceX", 6, 3, 11, 3, 63.4))
sketch2.addConstraint(Sketcher.Constraint("DistanceX", 7, 3, 12, 3, 63.4))
sketch2.addConstraint(Sketcher.Constraint("DistanceX", 4, 3, -1, 1, 76.08))
sketch2.addConstraint(Sketcher.Constraint("DistanceY", 4, 3, -1, 1, 8.19))
sketch2.addConstraint(Sketcher.Constraint("DistanceX", 7, 3, -1, 1, 38.04))
pad2 = body.newObject("PartDesign::Pad", "Pad001")
pad2.Profile = sketch2
pad2.Length = 1.3

doc.recompute()
